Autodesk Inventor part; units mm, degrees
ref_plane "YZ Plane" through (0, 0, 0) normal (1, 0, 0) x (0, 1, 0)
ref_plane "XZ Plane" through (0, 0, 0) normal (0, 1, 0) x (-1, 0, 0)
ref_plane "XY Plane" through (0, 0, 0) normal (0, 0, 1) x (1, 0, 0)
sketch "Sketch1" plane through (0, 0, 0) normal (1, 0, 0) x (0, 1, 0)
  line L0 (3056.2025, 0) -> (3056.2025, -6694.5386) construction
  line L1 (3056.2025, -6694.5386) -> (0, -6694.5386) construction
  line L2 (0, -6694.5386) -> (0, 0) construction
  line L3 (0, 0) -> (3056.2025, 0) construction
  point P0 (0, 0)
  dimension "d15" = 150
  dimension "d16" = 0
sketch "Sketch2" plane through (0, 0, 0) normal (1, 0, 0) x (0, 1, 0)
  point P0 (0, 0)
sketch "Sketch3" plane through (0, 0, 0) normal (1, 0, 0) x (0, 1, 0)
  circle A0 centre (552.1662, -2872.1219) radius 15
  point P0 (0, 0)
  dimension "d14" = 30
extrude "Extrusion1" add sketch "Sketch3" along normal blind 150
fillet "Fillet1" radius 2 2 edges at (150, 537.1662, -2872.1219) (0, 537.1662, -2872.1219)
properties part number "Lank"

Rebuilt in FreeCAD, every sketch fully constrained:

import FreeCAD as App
import Part
import Sketcher
from FreeCAD import Vector


def edges_at(feature, points):
    """Names of the edges that pass closest to the given points."""
    edges = feature.Shape.Edges
    near = lambda p: min(range(len(edges)), key=lambda i: edges[i].distToShape(Part.Vertex(*p))[0])
    return sorted({f"Edge{near(p) + 1}" for p in points})

doc = App.newDocument("Part")
body = doc.addObject("PartDesign::Body", "Body")

sketch1 = body.newObject("Sketcher::SketchObject", "Sketch")
sketch1.AttachmentSupport = (doc.getObject("YZ_Plane"), [""])
sketch1.MapMode = "FlatFace"
sketch1.addGeometry(Part.Circle(Vector(552.1662, -2872.1219, 0), Vector(0, 0, 1), 15), False)
sketch1.addConstraint([
    Sketcher.Constraint("Diameter", 0, 30.0),
    Sketcher.Constraint("DistanceY", 0, 3, -1, 1, 2872.122),
    Sketcher.Constraint("DistanceX", -1, 1, 0, 3, 552.1662),
])
pad1 = body.newObject("PartDesign::Pad", "Pad")
pad1.Profile = sketch1
pad1.Length = 150
doc.recompute()

fillet = body.newObject("PartDesign::Fillet", "Fillet")
fillet.Base = (pad1, edges_at(pad1, [(150, 537.166, -2872.122), (0, 537.166, -2872.122)]))
fillet.Radius = 2

doc.recompute()
